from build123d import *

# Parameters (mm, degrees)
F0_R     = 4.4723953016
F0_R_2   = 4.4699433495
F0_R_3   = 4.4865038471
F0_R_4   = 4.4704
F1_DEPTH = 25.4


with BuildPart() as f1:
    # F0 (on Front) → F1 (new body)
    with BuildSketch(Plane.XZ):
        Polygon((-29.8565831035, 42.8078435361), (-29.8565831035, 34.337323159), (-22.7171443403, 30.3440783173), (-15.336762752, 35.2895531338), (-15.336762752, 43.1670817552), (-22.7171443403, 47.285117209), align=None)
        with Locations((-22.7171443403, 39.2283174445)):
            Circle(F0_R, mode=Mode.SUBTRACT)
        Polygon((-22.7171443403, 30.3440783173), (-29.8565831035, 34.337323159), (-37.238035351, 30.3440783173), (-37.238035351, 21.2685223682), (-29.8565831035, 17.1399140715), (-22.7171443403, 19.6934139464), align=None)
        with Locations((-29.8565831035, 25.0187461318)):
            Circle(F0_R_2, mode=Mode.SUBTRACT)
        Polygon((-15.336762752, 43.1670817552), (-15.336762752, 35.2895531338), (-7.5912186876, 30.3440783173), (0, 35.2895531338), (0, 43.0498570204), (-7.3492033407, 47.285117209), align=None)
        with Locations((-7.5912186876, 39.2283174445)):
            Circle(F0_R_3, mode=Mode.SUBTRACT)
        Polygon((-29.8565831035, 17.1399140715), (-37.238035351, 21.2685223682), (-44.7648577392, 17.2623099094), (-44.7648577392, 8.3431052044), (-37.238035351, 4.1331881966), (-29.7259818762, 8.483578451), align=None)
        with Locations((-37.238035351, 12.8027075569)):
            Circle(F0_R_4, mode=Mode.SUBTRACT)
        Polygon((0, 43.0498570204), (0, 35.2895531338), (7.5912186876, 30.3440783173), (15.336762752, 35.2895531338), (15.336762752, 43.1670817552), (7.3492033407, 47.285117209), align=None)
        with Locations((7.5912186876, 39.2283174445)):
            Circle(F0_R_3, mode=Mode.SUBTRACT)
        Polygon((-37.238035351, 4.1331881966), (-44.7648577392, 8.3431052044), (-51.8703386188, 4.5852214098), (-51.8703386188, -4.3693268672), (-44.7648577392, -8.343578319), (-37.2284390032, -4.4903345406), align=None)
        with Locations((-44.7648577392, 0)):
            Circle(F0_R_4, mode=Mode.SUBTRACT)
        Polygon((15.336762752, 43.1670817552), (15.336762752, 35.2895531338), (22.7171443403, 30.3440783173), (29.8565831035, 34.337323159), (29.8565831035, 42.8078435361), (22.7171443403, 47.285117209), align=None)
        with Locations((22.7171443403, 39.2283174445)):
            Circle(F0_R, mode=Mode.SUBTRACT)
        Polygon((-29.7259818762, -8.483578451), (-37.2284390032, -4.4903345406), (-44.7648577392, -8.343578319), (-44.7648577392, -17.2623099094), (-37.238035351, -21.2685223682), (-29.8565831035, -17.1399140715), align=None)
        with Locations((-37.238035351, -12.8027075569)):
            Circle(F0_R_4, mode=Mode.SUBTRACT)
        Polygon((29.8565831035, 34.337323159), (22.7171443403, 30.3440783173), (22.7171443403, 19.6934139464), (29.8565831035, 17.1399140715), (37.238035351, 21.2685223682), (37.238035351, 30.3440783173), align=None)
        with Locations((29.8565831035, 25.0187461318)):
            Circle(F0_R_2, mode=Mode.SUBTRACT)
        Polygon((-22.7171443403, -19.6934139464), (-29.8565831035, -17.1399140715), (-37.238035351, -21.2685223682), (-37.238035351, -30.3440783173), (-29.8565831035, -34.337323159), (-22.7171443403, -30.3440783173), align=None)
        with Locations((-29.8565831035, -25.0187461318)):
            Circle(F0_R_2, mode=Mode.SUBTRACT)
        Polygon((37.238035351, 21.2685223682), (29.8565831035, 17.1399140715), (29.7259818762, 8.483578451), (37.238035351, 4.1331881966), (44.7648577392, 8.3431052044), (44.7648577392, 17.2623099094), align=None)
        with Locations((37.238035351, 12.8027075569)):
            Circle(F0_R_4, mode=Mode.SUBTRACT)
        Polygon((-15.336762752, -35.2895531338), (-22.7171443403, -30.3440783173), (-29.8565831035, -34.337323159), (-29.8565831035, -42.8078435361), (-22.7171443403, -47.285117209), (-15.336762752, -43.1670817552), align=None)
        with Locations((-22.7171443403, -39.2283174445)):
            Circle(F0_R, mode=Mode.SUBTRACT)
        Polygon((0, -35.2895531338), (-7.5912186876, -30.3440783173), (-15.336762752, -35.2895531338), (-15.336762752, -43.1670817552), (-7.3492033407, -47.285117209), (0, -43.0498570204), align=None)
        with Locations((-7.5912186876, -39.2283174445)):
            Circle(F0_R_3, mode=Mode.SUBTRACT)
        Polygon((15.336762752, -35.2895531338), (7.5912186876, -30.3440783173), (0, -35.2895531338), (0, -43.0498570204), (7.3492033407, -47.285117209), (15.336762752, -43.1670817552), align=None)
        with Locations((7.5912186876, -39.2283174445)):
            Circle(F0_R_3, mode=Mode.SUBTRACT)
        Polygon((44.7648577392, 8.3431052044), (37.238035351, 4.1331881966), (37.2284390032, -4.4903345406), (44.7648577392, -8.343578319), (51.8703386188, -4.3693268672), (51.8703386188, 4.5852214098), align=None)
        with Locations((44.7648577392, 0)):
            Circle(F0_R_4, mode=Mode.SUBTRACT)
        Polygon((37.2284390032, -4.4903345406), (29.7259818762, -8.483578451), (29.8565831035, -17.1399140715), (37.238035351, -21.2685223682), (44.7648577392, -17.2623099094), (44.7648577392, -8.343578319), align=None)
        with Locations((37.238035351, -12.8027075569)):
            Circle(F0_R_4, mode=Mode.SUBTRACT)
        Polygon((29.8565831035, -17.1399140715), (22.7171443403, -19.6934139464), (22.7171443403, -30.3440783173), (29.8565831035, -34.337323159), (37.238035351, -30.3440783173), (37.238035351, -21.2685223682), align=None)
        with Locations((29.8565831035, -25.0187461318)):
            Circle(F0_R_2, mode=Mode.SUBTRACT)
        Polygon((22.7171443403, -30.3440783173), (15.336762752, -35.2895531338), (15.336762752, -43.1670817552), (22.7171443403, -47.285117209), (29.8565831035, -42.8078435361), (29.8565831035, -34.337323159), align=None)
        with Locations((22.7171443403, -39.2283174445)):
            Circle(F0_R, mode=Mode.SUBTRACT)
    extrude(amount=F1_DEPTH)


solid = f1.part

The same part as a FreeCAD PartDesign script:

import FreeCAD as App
import Part
import Sketcher

V = App.Vector
Q = App.Units.Quantity


def add_polygon(sketch, points):
    """Adds a closed chain of lines whose ends are joined by coincident constraints."""
    first, n = sketch.GeometryCount, len(points)
    for a, b in zip(points, points[1:] + points[:1]):
        sketch.addGeometry(Part.LineSegment(App.Vector(*a, 0), App.Vector(*b, 0)), False)
    for i in range(n):
        sketch.addConstraint(Sketcher.Constraint("Coincident", first + i, 2, first + (i + 1) % n, 1))

doc = App.newDocument("Part")
body = doc.addObject("PartDesign::Body", "Body")

# Sketch on XZ plane
sketch1 = body.newObject("Sketcher::SketchObject", "Sketch")
sketch1.AttachmentSupport = (doc.getObject("XZ_Plane"), [""])
sketch1.MapMode = "FlatFace"
add_polygon(sketch1, [(-29.9, 42.8), (-29.9, 34.3), (-37.2, 30.3), (-37.2, 21.3), (-44.8, 17.3), (-44.8, 8.3), (-51.9, 4.6), (-51.9, -4.4), (-44.8, -8.3), (-44.8, -17.3), (-37.2, -21.3), (-37.2, -30.3), (-29.9, -34.3), (-29.9, -42.8), (-22.7, -47.3), (-15.3, -43.2), (-7.3, -47.3), (0, -43), (7.3, -47.3), (15.3, -43.2), (22.7, -47.3), (29.9, -42.8), (29.9, -34.3), (37.2, -30.3), (37.2, -21.3), (44.8, -17.3), (44.8, -8.3), (51.9, -4.4), (51.9, 4.6), (44.8, 8.3), (44.8, 17.3), (37.2, 21.3), (37.2, 30.3), (29.9, 34.3), (29.9, 42.8), (22.7, 47.3), (15.3, 43.2), (7.3, 47.3), (0, 43), (-7.3, 47.3), (-15.3, 43.2), (-22.7, 47.3)])  # lines 0-41
sketch1.addGeometry(Part.Circle(V(-29.9, -25, 0), V(0, 0, 1), 4.5), False)  # 42
sketch1.addGeometry(Part.Circle(V(-22.7, -39.2, 0), V(0, 0, 1), 4.5), False)  # 43
sketch1.addGeometry(Part.Circle(V(-7.6, -39.2, 0), V(0, 0, 1), 4.5), False)  # 44
sketch1.addGeometry(Part.Circle(V(-37.2, -12.8, 0), V(0, 0, 1), 4.5), False)  # 45
sketch1.addGeometry(Part.Circle(V(-44.8, 0, 0), V(0, 0, 1), 4.5), False)  # 46
sketch1.addGeometry(Part.Circle(V(7.6, -39.2, 0), V(0, 0, 1), 4.5), False)  # 47
sketch1.addGeometry(Part.Circle(V(22.7, -39.2, 0), V(0, 0, 1), 4.5), False)  # 48
sketch1.addGeometry(Part.Circle(V(29.9, -25, 0), V(0, 0, 1), 4.5), False)  # 49
add_polygon(sketch1, [(15.3, -35.3), (7.6, -30.3), (0, -35.3), (-7.6, -30.3), (-15.3, -35.3), (-22.7, -30.3), (-22.7, -19.7), (-29.9, -17.1), (-29.7, -8.5), (-37.2, -4.5), (-37.2, 4.1), (-29.7, 8.5), (-29.9, 17.1), (-22.7, 19.7), (-22.7, 30.3), (-15.3, 35.3), (-7.6, 30.3), (0, 35.3), (7.6, 30.3), (15.3, 35.3), (22.7, 30.3), (22.7, 19.7), (29.9, 17.1), (29.7, 8.5), (37.2, 4.1), (37.2, -4.5), (29.7, -8.5), (29.9, -17.1), (22.7, -19.7), (22.7, -30.3)])  # lines 50-79
sketch1.addGeometry(Part.Circle(V(37.2, -12.8, 0), V(0, 0, 1), 4.5), False)  # 80
sketch1.addGeometry(Part.Circle(V(44.8, 0, 0), V(0, 0, 1), 4.5), False)  # 81
sketch1.addGeometry(Part.Circle(V(-37.2, 12.8, 0), V(0, 0, 1), 4.5), False)  # 82
sketch1.addGeometry(Part.Circle(V(-29.9, 25, 0), V(0, 0, 1), 4.5), False)  # 83
sketch1.addGeometry(Part.Circle(V(-22.7, 39.2, 0), V(0, 0, 1), 4.5), False)  # 84
sketch1.addGeometry(Part.Circle(V(-7.6, 39.2, 0), V(0, 0, 1), 4.5), False)  # 85
sketch1.addGeometry(Part.Circle(V(37.2, 12.8, 0), V(0, 0, 1), 4.5), False)  # 86
sketch1.addGeometry(Part.Circle(V(7.6, 39.2, 0), V(0, 0, 1), 4.5), False)  # 87
sketch1.addGeometry(Part.Circle(V(22.7, 39.2, 0), V(0, 0, 1), 4.5), False)  # 88
sketch1.addGeometry(Part.Circle(V(29.9, 25, 0), V(0, 0, 1), 4.5), False)  # 89
sketch1.addConstraint(Sketcher.Constraint("Vertical", 0))
sketch1.addConstraint(Sketcher.Constraint("Vertical", 2))
sketch1.addConstraint(Sketcher.Constraint("Vertical", 4))
sketch1.addConstraint(Sketcher.Constraint("Vertical", 6))
sketch1.addConstraint(Sketcher.Constraint("Vertical", 8))
sketch1.addConstraint(Sketcher.Constraint("Vertical", 10))
sketch1.addConstraint(Sketcher.Constraint("Vertical", 12))
sketch1.addConstraint(Sketcher.Constraint("Vertical", 21))
sketch1.addConstraint(Sketcher.Constraint("Vertical", 23))
sketch1.addConstraint(Sketcher.Constraint("Vertical", 25))
sketch1.addConstraint(Sketcher.Constraint("Vertical", 27))
sketch1.addConstraint(Sketcher.Constraint("Vertical", 29))
sketch1.addConstraint(Sketcher.Constraint("Vertical", 31))
sketch1.addConstraint(Sketcher.Constraint("Vertical", 33))
sketch1.addConstraint(Sketcher.Constraint("Vertical", 55))
sketch1.addConstraint(Sketcher.Constraint("Vertical", 63))
sketch1.addConstraint(Sketcher.Constraint("Vertical", 70))
sketch1.addConstraint(Sketcher.Constraint("Vertical", 78))
sketch1.addConstraint(Sketcher.Constraint("Equal", 45, 46))
sketch1.addConstraint(Sketcher.Constraint("Equal", 44, 47))
sketch1.addConstraint(Sketcher.Constraint("Equal", 43, 48))
sketch1.addConstraint(Sketcher.Constraint("Equal", 42, 49))
sketch1.addConstraint(Sketcher.Constraint("Equal", 46, 80))
sketch1.addConstraint(Sketcher.Constraint("Equal", 80, 81))
sketch1.addConstraint(Sketcher.Constraint("Equal", 81, 82))
sketch1.addConstraint(Sketcher.Constraint("Equal", 49, 83))
sketch1.addConstraint(Sketcher.Constraint("Equal", 48, 84))
sketch1.addConstraint(Sketcher.Constraint("Equal", 47, 85))
sketch1.addConstraint(Sketcher.Constraint("Equal", 82, 86))
sketch1.addConstraint(Sketcher.Constraint("Equal", 85, 87))
sketch1.addConstraint(Sketcher.Constraint("Equal", 84, 88))
sketch1.addConstraint(Sketcher.Constraint("Equal", 83, 89))
sketch1.addConstraint(Sketcher.Constraint("Symmetric", 46, 3, 81, 3, -1, 1))
sketch1.addConstraint(Sketcher.Constraint("Symmetric", 80, 3, 82, 3, -1, 1))
sketch1.addConstraint(Sketcher.Constraint("Symmetric", 49, 3, 83, 3, -1, 1))
sketch1.addConstraint(Sketcher.Constraint("Symmetric", 48, 3, 84, 3, -1, 1))
sketch1.addConstraint(Sketcher.Constraint("Symmetric", 47, 3, 85, 3, -1, 1))
sketch1.addConstraint(Sketcher.Constraint("Symmetric", 45, 3, 86, 3, -1, 1))
sketch1.addConstraint(Sketcher.Constraint("Symmetric", 44, 3, 87, 3, -1, 1))
sketch1.addConstraint(Sketcher.Constraint("Symmetric", 43, 3, 88, 3, -1, 1))
sketch1.addConstraint(Sketcher.Constraint("Symmetric", 42, 3, 89, 3, -1, 1))
sketch1.addConstraint(Sketcher.Constraint("Symmetric", 0, 2, 21, 2, -1, 1))
sketch1.addConstraint(Sketcher.Constraint("Symmetric", 1, 2, 22, 2, -1, 1))
sketch1.addConstraint(Sketcher.Constraint("Symmetric", 3, 2, 24, 2, -1, 1))
sketch1.addConstraint(Sketcher.Constraint("Symmetric", 8, 2, 29, 2, -1, 1))
sketch1.addConstraint(Sketcher.Constraint("Symmetric", 9, 2, 30, 2, -1, 1))
sketch1.addConstraint(Sketcher.Constraint("Symmetric", 11, 2, 32, 2, -1, 1))
sketch1.addConstraint(Sketcher.Constraint("Symmetric", 13, 2, 34, 2, -1, 1))
sketch1.addConstraint(Sketcher.Constraint("Symmetric", 14, 2, 35, 2, -1, 1))
sketch1.addConstraint(Sketcher.Constraint("Symmetric", 15, 2, 36, 2, -1, 1))
sketch1.addConstraint(Sketcher.Constraint("Symmetric", 16, 2, 37, 2, -1, 1))
sketch1.addConstraint(Sketcher.Constraint("Symmetric", 17, 2, 38, 2, -1, 1))
sketch1.addConstraint(Sketcher.Constraint("Symmetric", 18, 2, 39, 2, -1, 1))
sketch1.addConstraint(Sketcher.Constraint("Symmetric", 19, 2, 40, 2, -1, 1))
sketch1.addConstraint(Sketcher.Constraint("Symmetric", 50, 2, 65, 2, -1, 1))
sketch1.addConstraint(Sketcher.Constraint("Symmetric", 51, 2, 66, 2, -1, 1))
sketch1.addConstraint(Sketcher.Constraint("Symmetric", 52, 2, 67, 2, -1, 1))
sketch1.addConstraint(Sketcher.Constraint("Symmetric", 53, 2, 68, 2, -1, 1))
sketch1.addConstraint(Sketcher.Constraint("Symmetric", 54, 2, 69, 2, -1, 1))
sketch1.addConstraint(Sketcher.Constraint("Symmetric", 56, 2, 71, 2, -1, 1))
sketch1.addConstraint(Sketcher.Constraint("Symmetric", 57, 2, 72, 2, -1, 1))
sketch1.addConstraint(Sketcher.Constraint("Symmetric", 60, 2, 75, 2, -1, 1))
sketch1.addConstraint(Sketcher.Constraint("Symmetric", 61, 2, 76, 2, -1, 1))
sketch1.addConstraint(Sketcher.Constraint("Symmetric", 62, 2, 77, 2, -1, 1))
sketch1.addConstraint(Sketcher.Constraint("Symmetric", 64, 2, 79, 2, -1, 1))
sketch1.addConstraint(Sketcher.Constraint("Symmetric", 44, 3, 47, 3, -2))
sketch1.addConstraint(Sketcher.Constraint("Symmetric", 43, 3, 48, 3, -2))
sketch1.addConstraint(Sketcher.Constraint("Symmetric", 42, 3, 49, 3, -2))
sketch1.addConstraint(Sketcher.Constraint("Symmetric", 45, 3, 80, 3, -2))
sketch1.addConstraint(Sketcher.Constraint("Symmetric", 15, 2, 17, 2, -2))
sketch1.addConstraint(Sketcher.Constraint("Symmetric", 14, 2, 18, 2, -2))
sketch1.addConstraint(Sketcher.Constraint("Symmetric", 13, 2, 19, 2, -2))
sketch1.addConstraint(Sketcher.Constraint("Symmetric", 12, 2, 20, 2, -2))
sketch1.addConstraint(Sketcher.Constraint("Symmetric", 10, 2, 22, 2, -2))
sketch1.addConstraint(Sketcher.Constraint("Symmetric", 8, 2, 24, 2, -2))
sketch1.addConstraint(Sketcher.Constraint("Symmetric", 6, 2, 26, 2, -2))
sketch1.addConstraint(Sketcher.Constraint("Symmetric", 50, 2, 52, 2, -2))
sketch1.addConstraint(Sketcher.Constraint("Symmetric", 64, 2, 68, 2, -2))
sketch1.addConstraint(Sketcher.Constraint("Symmetric", 63, 2, 69, 2, -2))
sketch1.addConstraint(Sketcher.Constraint("Symmetric", 61, 2, 71, 2, -2))
sketch1.addConstraint(Sketcher.Constraint("Symmetric", 60, 2, 72, 2, -2))
sketch1.addConstraint(Sketcher.Constraint("Symmetric", 59, 2, 73, 2, -2))
sketch1.addConstraint(Sketcher.Constraint("Symmetric", 58, 2, 74, 2, -2))
sketch1.addConstraint(Sketcher.Constraint("PointOnObject", 46, 3, -1))
sketch1.addConstraint(Sketcher.Constraint("PointOnObject", 16, 2, -2))
sketch1.addConstraint(Sketcher.Constraint("PointOnObject", 51, 2, -2))
sketch1.addConstraint(Sketcher.Constraint("Parallel", 3, 24))
sketch1.addConstraint(Sketcher.Constraint("Parallel", 11, 32))
sketch1.addConstraint(Sketcher.Constraint("Parallel", 13, 34))
sketch1.addConstraint(Sketcher.Constraint("Parallel", 20, 41))
sketch1.addConstraint(Sketcher.Constraint("Parallel", 30, 58))
sketch1.addConstraint(Sketcher.Constraint("Parallel", 56, 71))
sketch1.addConstraint(Sketcher.Constraint("Parallel", 24, 75))
sketch1.addConstraint(Sketcher.Constraint("Parallel", 64, 79))
sketch1.addConstraint(Sketcher.Constraint("Horizontal", 43, 3, 44, 3))
sketch1.addConstraint(Sketcher.Constraint("Horizontal", 13, 2, 15, 2))
sketch1.addConstraint(Sketcher.Constraint("Horizontal", 11, 2, 21, 2))
sketch1.addConstraint(Sketcher.Constraint("Horizontal", 7, 2, 25, 2))
sketch1.addConstraint(Sketcher.Constraint("Horizontal", 5, 2, 27, 2))
sketch1.addConstraint(Sketcher.Constraint("Horizontal", 4, 2, 28, 2))
sketch1.addConstraint(Sketcher.Constraint("Horizontal", 22, 2, 50, 2))
sketch1.addConstraint(Sketcher.Constraint("Horizontal", 51, 2, 53, 2))
sketch1.addConstraint(Sketcher.Constraint("Horizontal", 52, 2, 54, 2))
sketch1.addConstraint(Sketcher.Constraint("Horizontal", 62, 2, 70, 2))
sketch1.addConstraint(Sketcher.Constraint("Vertical", 83, 3, 0, 2))
sketch1.addConstraint(Sketcher.Constraint("Vertical", 82, 3, 1, 2))
sketch1.addConstraint(Sketcher.Constraint("Vertical", 46, 3, 3, 2))
sketch1.addConstraint(Sketcher.Constraint("Vertical", 84, 3, 13, 2))
sketch1.addConstraint(Sketcher.Constraint("Vertical", 87, 3, 50, 2))
sketch1.addConstraint(Sketcher.Constraint("Vertical", 39, 2, 53, 2))
sketch1.addConstraint(Sketcher.Constraint("Vertical", 40, 2, 54, 2))
sketch1.addConstraint(Sketcher.Constraint("Vertical", 41, 2, 56, 2))
sketch1.addConstraint(Sketcher.Constraint("Vertical", 10, 2, 59, 2))
sketch1.addConstraint(Sketcher.Constraint("Diameter", 45, Q("0.352 in")))
sketch1.addConstraint(Sketcher.Constraint("Diameter", 43, Q("8.944791 mm")))
sketch1.addConstraint(Sketcher.Constraint("Diameter", 42, Q("8.939887 mm")))
sketch1.addConstraint(Sketcher.Constraint("Diameter", 44, Q("8.973008 mm")))
sketch1.addConstraint(Sketcher.Constraint("DistanceY", 0, 2, 0, 1, Q("8.47052 mm")))
sketch1.addConstraint(Sketcher.Constraint("DistanceY", 6, 2, 6, 1, Q("8.954548 mm")))
sketch1.addConstraint(Sketcher.Constraint("DistanceY", 8, 2, 8, 1, Q("8.918732 mm")))
sketch1.addConstraint(Sketcher.Constraint("Distance", 1, Q("8.392368 mm")))
sketch1.addConstraint(Sketcher.Constraint("Distance", 7, Q("8.141409 mm")))
sketch1.addConstraint(Sketcher.Constraint("Distance", 15, Q("8.986619 mm")))
sketch1.addConstraint(Sketcher.Constraint("Distance", 16, Q("8.48223 mm")))
sketch1.addConstraint(Sketcher.Constraint("Distance", 50, Q("9.189732 mm")))
sketch1.addConstraint(Sketcher.Constraint("Distance", 51, Q("9.06004 mm")))
sketch1.addConstraint(Sketcher.Constraint("Distance", 54, Q("8.884129 mm")))
sketch1.addConstraint(Sketcher.Constraint("Distance", 57, Q("8.657321 mm")))
sketch1.addConstraint(Sketcher.Constraint("Distance", 58, Q("8.498992 mm")))
sketch1.addConstraint(Sketcher.Constraint("Distance", 59, Q("8.623528 mm")))
sketch1.addConstraint(Sketcher.Constraint("Distance", 60, Q("8.680832 mm")))
sketch1.addConstraint(Sketcher.Constraint("DistanceY", 2, 2, 2, 1, Q("9.075556 mm")))
sketch1.addConstraint(Sketcher.Constraint("DistanceY", 4, 2, 4, 1, Q("8.919205 mm")))
sketch1.addConstraint(Sketcher.Constraint("DistanceY", 55, 1, 55, 2, Q("10.650664 mm")))
sketch1.addConstraint(Sketcher.Constraint("DistanceX", 44, 3, -1, 1, Q("7.591219 mm")))
sketch1.addConstraint(Sketcher.Constraint("DistanceY", -1, 1, 1, 2, Q("30.344078 mm")))
sketch1.addConstraint(Sketcher.Constraint("DistanceY", -1, 1, 3, 2, Q("17.26231 mm")))
sketch1.addConstraint(Sketcher.Constraint("DistanceX", 5, 2, -1, 1, Q("51.870339 mm")))
sketch1.addConstraint(Sketcher.Constraint("DistanceY", -1, 1, 5, 2, Q("4.585221 mm")))
sketch1.addConstraint(Sketcher.Constraint("DistanceY", 14, 2, -1, 1, Q("43.167082 mm")))
sketch1.addConstraint(Sketcher.Constraint("DistanceX", 57, 2, -1, 1, Q("29.725982 mm")))
sketch1.addConstraint(Sketcher.Constraint("DistanceY", 57, 2, -1, 1, Q("8.483578 mm")))
sketch1.addConstraint(Sketcher.Constraint("Distance", 13, Q("8.427192 mm")))
sketch1.addConstraint(Sketcher.Constraint("Distance", 14, Q("8.451523 mm")))
sketch1.addConstraint(Sketcher.Constraint("DistanceY", 42, 3, -1, 1, Q("25.018746 mm")))
sketch1.addConstraint(Sketcher.Constraint("DistanceY", 43, 3, -1, 1, Q("39.228317 mm")))
sketch1.addConstraint(Sketcher.Constraint("DistanceY", 45, 3, -1, 1, Q("12.802708 mm")))
pad1 = body.newObject("PartDesign::Pad", "Pad")
pad1.Profile = sketch1
pad1.Length = Q("1 in")

doc.recompute()
